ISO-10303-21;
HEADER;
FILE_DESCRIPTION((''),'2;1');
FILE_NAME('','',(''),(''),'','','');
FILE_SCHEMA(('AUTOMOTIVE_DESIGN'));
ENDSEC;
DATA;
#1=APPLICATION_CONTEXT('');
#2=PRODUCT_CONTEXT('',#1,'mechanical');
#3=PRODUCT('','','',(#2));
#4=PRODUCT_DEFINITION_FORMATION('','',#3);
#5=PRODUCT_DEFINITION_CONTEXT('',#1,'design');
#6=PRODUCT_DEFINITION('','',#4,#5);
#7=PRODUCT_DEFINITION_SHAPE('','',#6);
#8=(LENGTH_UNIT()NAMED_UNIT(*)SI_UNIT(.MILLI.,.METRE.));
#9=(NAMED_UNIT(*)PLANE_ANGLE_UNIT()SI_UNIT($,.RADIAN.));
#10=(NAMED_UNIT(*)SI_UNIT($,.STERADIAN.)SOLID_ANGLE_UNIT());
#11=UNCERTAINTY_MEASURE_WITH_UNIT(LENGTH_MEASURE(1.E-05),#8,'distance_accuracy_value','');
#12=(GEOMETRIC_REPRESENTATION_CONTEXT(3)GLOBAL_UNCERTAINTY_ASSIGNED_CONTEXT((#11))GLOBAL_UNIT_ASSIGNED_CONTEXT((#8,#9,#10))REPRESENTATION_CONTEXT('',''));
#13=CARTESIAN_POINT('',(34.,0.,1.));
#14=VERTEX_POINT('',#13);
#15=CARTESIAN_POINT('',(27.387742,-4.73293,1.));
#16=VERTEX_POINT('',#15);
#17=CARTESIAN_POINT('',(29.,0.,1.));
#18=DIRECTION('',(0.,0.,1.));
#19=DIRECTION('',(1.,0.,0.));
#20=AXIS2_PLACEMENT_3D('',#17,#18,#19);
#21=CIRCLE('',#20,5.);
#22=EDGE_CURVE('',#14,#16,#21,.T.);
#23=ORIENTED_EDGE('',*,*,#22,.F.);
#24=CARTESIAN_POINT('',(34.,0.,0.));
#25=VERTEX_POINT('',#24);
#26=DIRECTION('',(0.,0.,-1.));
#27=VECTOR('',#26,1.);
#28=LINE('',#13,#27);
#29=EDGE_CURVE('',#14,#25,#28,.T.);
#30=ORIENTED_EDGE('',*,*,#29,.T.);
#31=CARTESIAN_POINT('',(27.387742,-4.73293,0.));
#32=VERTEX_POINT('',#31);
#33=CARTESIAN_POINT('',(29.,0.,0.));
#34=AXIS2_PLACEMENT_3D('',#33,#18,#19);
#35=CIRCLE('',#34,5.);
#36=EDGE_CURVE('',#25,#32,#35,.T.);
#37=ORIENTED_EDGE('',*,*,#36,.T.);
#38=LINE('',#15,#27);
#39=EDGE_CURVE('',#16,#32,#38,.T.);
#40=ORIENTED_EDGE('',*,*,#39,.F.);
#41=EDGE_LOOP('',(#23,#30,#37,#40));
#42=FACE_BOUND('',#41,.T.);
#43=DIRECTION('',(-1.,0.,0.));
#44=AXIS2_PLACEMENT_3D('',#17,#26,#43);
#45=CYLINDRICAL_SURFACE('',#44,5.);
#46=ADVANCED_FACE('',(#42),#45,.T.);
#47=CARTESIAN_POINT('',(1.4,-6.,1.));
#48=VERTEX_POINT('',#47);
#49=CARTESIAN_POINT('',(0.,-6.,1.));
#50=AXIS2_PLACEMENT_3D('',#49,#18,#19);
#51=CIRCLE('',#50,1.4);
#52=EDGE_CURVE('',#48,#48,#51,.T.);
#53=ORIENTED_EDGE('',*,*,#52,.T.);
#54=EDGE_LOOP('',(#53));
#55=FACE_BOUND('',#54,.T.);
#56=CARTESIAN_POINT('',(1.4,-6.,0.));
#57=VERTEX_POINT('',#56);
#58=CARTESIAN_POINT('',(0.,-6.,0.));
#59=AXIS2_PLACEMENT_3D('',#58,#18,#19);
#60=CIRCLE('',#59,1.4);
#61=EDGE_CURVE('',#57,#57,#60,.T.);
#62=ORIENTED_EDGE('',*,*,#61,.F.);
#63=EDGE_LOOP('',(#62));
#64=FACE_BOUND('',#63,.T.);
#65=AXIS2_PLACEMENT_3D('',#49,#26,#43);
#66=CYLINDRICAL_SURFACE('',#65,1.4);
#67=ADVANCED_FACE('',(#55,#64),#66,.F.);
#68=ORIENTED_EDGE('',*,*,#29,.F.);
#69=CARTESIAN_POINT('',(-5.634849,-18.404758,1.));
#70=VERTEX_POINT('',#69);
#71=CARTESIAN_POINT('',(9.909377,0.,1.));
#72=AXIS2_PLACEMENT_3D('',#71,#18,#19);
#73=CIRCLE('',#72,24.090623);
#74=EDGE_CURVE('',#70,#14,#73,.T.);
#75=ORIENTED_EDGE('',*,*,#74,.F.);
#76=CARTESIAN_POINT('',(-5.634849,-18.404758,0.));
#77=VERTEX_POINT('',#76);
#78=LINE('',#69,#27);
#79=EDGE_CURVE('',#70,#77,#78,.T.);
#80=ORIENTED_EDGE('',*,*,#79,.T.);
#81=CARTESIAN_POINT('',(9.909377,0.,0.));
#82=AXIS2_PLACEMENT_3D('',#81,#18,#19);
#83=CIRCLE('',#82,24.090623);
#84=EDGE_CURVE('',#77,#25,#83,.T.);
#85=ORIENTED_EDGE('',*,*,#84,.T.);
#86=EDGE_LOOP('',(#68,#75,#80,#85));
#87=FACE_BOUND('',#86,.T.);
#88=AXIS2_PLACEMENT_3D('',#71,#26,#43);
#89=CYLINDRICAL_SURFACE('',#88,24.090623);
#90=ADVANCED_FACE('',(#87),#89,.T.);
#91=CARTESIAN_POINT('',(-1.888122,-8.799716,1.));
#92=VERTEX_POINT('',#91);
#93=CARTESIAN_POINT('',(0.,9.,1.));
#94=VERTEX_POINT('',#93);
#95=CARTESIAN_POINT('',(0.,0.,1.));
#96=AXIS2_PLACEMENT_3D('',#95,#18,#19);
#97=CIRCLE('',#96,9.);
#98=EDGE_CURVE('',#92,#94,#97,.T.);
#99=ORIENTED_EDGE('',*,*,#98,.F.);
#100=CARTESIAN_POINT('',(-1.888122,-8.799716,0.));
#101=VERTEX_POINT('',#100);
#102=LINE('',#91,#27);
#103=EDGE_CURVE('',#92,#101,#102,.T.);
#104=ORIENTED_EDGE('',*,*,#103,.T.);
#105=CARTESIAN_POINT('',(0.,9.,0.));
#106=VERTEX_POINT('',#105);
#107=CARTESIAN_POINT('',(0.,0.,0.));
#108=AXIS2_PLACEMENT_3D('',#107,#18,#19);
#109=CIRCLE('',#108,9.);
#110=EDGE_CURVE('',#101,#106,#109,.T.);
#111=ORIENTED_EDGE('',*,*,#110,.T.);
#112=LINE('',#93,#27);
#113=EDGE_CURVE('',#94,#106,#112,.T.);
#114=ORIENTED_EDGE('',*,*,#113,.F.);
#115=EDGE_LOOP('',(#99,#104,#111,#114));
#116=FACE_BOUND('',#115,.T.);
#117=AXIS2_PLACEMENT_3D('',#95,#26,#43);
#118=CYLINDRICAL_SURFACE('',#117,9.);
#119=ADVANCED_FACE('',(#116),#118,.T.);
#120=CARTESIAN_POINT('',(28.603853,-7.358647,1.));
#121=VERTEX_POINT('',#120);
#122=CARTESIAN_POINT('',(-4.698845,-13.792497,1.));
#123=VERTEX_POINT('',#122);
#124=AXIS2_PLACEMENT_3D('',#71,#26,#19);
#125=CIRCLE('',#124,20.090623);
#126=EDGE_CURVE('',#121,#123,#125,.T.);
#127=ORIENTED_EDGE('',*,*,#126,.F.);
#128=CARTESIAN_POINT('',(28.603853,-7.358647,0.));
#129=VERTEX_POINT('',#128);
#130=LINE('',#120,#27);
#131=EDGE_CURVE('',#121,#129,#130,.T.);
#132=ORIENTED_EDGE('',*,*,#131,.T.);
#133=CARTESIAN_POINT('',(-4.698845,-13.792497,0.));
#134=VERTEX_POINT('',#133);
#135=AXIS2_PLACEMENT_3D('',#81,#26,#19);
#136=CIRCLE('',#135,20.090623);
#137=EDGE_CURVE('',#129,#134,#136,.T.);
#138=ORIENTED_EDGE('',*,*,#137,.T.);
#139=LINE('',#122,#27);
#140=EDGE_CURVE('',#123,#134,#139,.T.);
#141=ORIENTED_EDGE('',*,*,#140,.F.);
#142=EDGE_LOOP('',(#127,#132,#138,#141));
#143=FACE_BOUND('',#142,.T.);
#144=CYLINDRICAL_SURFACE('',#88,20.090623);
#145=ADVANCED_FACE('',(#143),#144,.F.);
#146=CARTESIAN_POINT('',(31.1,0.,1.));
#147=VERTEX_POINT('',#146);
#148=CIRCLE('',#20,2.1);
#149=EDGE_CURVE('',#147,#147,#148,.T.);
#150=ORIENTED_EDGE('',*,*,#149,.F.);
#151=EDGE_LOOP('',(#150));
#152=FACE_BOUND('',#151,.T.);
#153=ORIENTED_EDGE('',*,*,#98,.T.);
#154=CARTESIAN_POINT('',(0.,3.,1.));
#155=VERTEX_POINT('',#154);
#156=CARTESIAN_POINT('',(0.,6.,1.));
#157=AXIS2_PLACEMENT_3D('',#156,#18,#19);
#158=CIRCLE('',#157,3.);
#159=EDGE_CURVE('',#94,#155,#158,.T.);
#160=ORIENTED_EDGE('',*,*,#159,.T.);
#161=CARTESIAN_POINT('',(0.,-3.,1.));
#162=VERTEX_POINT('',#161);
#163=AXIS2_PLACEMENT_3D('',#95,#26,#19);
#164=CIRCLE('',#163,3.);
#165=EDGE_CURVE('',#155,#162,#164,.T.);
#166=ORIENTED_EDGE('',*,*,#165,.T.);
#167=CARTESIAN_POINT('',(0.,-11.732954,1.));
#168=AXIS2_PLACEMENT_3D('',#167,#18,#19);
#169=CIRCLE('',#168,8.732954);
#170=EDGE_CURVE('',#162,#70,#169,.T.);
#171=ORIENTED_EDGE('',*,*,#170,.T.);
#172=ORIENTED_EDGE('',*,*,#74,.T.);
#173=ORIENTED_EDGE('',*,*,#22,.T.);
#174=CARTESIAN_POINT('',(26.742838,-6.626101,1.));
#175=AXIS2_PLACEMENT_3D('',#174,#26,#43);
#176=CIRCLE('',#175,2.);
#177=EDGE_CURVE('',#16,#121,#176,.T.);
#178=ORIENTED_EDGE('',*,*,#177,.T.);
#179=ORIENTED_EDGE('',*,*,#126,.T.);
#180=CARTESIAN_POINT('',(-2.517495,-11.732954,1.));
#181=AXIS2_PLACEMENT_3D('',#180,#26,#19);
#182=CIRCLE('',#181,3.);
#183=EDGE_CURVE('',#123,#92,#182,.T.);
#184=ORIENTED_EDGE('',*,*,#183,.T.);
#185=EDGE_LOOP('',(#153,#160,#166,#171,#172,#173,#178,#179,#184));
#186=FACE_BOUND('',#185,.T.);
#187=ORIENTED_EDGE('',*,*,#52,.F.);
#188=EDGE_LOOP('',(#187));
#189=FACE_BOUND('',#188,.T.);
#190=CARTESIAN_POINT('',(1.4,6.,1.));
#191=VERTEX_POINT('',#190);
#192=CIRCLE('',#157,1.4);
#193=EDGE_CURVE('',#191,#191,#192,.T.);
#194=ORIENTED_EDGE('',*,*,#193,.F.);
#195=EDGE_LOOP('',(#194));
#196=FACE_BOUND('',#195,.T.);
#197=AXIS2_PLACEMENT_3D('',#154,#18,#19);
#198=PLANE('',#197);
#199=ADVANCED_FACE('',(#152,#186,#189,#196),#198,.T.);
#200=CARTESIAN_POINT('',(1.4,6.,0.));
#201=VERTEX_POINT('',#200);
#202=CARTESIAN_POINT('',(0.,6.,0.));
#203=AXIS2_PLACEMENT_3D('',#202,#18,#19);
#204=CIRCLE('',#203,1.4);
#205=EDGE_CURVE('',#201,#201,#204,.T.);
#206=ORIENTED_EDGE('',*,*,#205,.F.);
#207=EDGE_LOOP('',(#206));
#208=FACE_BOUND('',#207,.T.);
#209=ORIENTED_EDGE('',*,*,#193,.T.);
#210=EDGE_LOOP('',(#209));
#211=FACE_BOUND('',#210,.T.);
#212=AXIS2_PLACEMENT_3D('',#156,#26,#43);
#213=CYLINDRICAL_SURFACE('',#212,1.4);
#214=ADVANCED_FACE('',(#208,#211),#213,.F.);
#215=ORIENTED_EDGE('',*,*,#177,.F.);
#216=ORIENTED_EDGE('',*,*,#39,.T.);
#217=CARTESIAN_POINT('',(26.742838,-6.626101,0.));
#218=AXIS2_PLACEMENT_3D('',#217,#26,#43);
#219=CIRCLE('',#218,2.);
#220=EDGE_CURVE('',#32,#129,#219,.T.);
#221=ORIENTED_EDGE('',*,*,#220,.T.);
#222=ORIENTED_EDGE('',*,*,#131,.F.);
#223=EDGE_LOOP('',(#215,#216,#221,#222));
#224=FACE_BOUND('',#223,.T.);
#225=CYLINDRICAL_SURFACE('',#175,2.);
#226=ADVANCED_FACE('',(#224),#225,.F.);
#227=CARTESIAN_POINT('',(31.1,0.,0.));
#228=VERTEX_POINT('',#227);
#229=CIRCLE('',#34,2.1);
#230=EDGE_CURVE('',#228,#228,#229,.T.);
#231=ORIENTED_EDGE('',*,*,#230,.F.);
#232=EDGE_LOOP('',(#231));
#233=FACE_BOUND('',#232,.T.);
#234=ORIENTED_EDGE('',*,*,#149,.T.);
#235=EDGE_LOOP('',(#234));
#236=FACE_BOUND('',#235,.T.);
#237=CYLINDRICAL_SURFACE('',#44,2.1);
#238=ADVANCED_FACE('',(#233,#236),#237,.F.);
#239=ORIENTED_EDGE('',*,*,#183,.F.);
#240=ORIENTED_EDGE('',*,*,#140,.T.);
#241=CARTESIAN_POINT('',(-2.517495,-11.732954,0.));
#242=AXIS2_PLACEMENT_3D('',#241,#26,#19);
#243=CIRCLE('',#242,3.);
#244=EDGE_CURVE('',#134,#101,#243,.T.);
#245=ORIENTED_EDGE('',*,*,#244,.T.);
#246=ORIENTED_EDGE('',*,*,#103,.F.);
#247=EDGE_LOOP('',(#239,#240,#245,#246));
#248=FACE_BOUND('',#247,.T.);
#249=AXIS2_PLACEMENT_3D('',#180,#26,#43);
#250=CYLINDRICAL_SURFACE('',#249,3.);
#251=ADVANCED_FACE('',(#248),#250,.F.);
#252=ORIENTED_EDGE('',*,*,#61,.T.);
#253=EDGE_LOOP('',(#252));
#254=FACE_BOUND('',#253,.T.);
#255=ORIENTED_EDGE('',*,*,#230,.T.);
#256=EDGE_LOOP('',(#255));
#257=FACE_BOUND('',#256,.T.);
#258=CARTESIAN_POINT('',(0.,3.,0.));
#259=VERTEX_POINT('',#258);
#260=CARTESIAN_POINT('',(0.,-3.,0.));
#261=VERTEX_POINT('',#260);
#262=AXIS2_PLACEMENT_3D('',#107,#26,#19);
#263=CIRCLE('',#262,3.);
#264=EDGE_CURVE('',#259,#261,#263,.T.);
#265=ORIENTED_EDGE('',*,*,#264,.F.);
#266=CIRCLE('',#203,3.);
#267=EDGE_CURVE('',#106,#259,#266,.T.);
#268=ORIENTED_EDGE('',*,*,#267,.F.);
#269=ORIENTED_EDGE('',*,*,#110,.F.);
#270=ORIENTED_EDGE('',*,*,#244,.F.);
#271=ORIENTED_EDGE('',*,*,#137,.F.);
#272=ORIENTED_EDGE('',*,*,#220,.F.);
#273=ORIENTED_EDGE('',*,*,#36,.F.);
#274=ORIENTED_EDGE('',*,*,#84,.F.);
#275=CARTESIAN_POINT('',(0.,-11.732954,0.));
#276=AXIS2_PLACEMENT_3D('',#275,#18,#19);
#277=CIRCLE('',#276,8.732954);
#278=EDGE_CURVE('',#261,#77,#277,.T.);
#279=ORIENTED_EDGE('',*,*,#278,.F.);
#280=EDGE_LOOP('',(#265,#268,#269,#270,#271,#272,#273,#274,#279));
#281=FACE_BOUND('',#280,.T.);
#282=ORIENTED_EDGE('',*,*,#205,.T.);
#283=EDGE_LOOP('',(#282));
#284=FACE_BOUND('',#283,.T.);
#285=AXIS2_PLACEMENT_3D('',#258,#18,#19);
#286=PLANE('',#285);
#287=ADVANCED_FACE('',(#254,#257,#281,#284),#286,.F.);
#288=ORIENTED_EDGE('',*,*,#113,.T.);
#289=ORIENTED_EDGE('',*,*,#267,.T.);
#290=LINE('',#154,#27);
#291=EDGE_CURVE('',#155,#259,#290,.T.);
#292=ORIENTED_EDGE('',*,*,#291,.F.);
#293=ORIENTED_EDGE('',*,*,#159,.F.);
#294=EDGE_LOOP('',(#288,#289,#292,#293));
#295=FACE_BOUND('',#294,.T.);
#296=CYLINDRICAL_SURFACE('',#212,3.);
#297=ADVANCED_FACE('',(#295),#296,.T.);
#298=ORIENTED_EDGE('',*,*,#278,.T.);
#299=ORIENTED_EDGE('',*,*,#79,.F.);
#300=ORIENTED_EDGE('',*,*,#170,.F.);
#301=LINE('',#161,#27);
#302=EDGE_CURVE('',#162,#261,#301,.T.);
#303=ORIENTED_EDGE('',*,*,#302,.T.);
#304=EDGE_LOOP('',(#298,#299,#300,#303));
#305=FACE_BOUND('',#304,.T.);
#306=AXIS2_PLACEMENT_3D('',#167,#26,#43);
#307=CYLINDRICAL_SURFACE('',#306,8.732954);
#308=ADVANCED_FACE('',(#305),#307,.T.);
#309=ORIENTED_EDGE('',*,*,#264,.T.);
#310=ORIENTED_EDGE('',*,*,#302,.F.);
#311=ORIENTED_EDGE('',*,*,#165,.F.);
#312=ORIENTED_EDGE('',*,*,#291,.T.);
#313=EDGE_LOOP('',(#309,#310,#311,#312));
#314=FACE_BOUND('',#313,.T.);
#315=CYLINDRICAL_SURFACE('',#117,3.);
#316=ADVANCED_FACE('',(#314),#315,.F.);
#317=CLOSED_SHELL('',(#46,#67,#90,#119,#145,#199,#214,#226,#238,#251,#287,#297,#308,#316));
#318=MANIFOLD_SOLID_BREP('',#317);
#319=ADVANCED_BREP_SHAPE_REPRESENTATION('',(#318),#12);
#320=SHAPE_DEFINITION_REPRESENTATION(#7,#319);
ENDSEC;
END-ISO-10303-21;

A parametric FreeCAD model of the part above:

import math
import FreeCAD as App
import Part
import Sketcher
Q = App.Units.Quantity

doc = App.newDocument("Part")
body = doc.addObject("PartDesign::Body", "Body")

sketch1 = body.newObject("Sketcher::SketchObject", "Sketch")
sketch1.AttachmentSupport = (doc.getObject("XY_Plane"), [""])
sketch1.MapMode = "FlatFace"
sketch1.addGeometry([
    Part.ArcOfCircle(Part.Circle(App.Vector(0, 0, 0), App.Vector(0, 0, 1), 3), math.radians(-90), math.radians(90)),
    Part.ArcOfCircle(Part.Circle(App.Vector(0, -11.7, 0), App.Vector(0, 0, 1), 8.7), math.radians(90), math.radians(230)),
    Part.ArcOfCircle(Part.Circle(App.Vector(9.9, 0, 0), App.Vector(0, 0, 1), 24.1), math.radians(-130), math.radians(0)),
    Part.ArcOfCircle(Part.Circle(App.Vector(29, 0, 0), App.Vector(0, 0, 1), 5), math.radians(0), math.radians(251)),
    Part.ArcOfCircle(Part.Circle(App.Vector(26.7, -6.6, 0), App.Vector(0, 0, 1), 2), math.radians(-21), math.radians(71)),
    Part.ArcOfCircle(Part.Circle(App.Vector(9.9, 0, 0), App.Vector(0, 0, 1), 20.1), math.radians(-137), math.radians(-21)),
    Part.ArcOfCircle(Part.Circle(App.Vector(-2.5, -11.7, 0), App.Vector(0, 0, 1), 3), math.radians(78), math.radians(223)),
    Part.ArcOfCircle(Part.Circle(App.Vector(0, 0, 0), App.Vector(0, 0, 1), 9), math.radians(-102), math.radians(90)),
    Part.ArcOfCircle(Part.Circle(App.Vector(0, 6, 0), App.Vector(0, 0, 1), 3), math.radians(90), math.radians(270)),
    Part.Circle(App.Vector(0, -6, 0), App.Vector(0, 0, 1), 1.4),
    Part.Circle(App.Vector(29, 0, 0), App.Vector(0, 0, 1), 2.1),
    Part.Circle(App.Vector(0, 6, 0), App.Vector(0, 0, 1), 1.4),
], False)
sketch1.addConstraint([
    Sketcher.Constraint("Tangent", 0, 1, 1, 1),
    Sketcher.Constraint("Tangent", 1, 2, 2, 1),
    Sketcher.Constraint("Tangent", 2, 2, 3, 1),
    Sketcher.Constraint("Tangent", 3, 2, 4, 2),
    Sketcher.Constraint("Tangent", 4, 1, 5, 2),
    Sketcher.Constraint("Tangent", 5, 1, 6, 2),
    Sketcher.Constraint("Tangent", 6, 1, 7, 1),
    Sketcher.Constraint("Tangent", 7, 2, 8, 1),
    Sketcher.Constraint("Tangent", 8, 2, 0, 2),
    Sketcher.Constraint("Coincident", 0, 3, -1, 1),
    Sketcher.Constraint("Coincident", 7, 3, -1, 1),
    Sketcher.Constraint("Coincident", 5, 3, 2, 3),
    Sketcher.Constraint("Coincident", 10, 3, 3, 3),
    Sketcher.Constraint("Coincident", 11, 3, 8, 3),
    Sketcher.Constraint("Equal", 0, 6),
    Sketcher.Constraint("Equal", 6, 8),
    Sketcher.Constraint("Equal", 9, 11),
    Sketcher.Constraint("Symmetric", 8, 3, 9, 3, -1, 1),
    Sketcher.Constraint("PointOnObject", 1, 3, -2),
    Sketcher.Constraint("PointOnObject", 2, 3, -1),
    Sketcher.Constraint("PointOnObject", 3, 3, -1),
    Sketcher.Constraint("PointOnObject", 8, 3, -2),
    Sketcher.Constraint("Horizontal", 1, 3, 6, 3),
    Sketcher.Constraint("Radius", 0, Q("3 mm")),
    Sketcher.Constraint("Radius", 3, Q("5 mm")),
    Sketcher.Constraint("Radius", 4, Q("2 mm")),
    Sketcher.Constraint("Diameter", 9, Q("2.8 mm")),
    Sketcher.Constraint("Diameter", 10, Q("4.2 mm")),
    Sketcher.Constraint("DistanceX", -1, 1, 3, 3, Q("29 mm")),
    Sketcher.Constraint("Radius", 1, Q("8.732954 mm")),
])
pad1 = body.newObject("PartDesign::Pad", "Pad")
pad1.Profile = sketch1
pad1.Length = 1

doc.recompute()
